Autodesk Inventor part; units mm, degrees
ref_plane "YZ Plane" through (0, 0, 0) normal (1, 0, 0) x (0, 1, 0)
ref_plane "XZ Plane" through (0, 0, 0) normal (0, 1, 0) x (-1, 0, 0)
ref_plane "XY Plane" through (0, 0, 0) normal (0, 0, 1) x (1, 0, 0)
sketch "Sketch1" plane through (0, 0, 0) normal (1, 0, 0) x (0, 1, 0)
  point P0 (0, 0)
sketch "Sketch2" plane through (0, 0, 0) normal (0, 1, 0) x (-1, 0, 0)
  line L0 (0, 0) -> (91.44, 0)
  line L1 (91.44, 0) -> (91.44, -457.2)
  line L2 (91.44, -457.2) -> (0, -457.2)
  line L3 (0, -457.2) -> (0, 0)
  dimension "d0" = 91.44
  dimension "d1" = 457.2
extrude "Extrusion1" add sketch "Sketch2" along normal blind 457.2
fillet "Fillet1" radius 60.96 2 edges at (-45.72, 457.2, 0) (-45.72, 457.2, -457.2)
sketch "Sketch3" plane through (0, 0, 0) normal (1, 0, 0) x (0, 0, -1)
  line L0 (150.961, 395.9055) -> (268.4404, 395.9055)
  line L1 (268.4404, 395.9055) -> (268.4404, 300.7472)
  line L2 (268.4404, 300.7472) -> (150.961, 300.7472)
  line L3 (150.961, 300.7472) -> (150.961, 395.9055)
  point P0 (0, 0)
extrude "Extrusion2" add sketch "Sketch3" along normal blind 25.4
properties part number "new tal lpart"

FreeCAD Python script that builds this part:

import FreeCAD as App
import Part
import Sketcher
from FreeCAD import Vector
Q = App.Units.Quantity


def edges_at(feature, points):
    """Names of the edges that pass closest to the given points."""
    edges = feature.Shape.Edges
    near = lambda p: min(range(len(edges)), key=lambda i: edges[i].distToShape(Part.Vertex(*p))[0])
    return sorted({f"Edge{near(p) + 1}" for p in points})

doc = App.newDocument("Part")
params = doc.addObject("Spreadsheet::Sheet", "Params")
for row, (alias, value) in enumerate([
    ("sketch1_height", "18 in"),
    ("sketch1_width", "3.6 in"),
    ("pad1_length", "18 in"),
    ("fillet_radius", "2.4 in"),
    ("pad2_length", "1 in"),
], start=1):
    params.set(f"A{row}", alias)
    params.set(f"B{row}", "=" + value)
    params.setAlias(f"B{row}", alias)

body = doc.addObject("PartDesign::Body", "Body")

# Sketch on XZ plane
sketch1 = body.newObject("Sketcher::SketchObject", "Sketch")
sketch1.AttachmentSupport = (doc.getObject("XZ_Plane"), [""])
sketch1.MapMode = "FlatFace"
sketch1.addGeometry([
    Part.LineSegment(Vector(-91.44, 0, 0), Vector(0, 0, 0)),
    Part.LineSegment(Vector(0, 0, 0), Vector(0, -457.2, 0)),
    Part.LineSegment(Vector(0, -457.2, 0), Vector(-91.44, -457.2, 0)),
    Part.LineSegment(Vector(-91.44, -457.2, 0), Vector(-91.44, 0, 0)),
], False)
sketch1.addConstraint([
    Sketcher.Constraint("Coincident", 0, 2, 1, 1),
    Sketcher.Constraint("Coincident", 1, 2, 2, 1),
    Sketcher.Constraint("Coincident", 2, 2, 3, 1),
    Sketcher.Constraint("Coincident", 3, 2, 0, 1),
    Sketcher.Constraint("Horizontal", 0),
    Sketcher.Constraint("Vertical", 1),
    Sketcher.Constraint("Horizontal", 2),
    Sketcher.Constraint("Vertical", 3),
    Sketcher.Constraint("Coincident", 0, 2, -1, 1),
    Sketcher.Constraint("DistanceY", 1, 2, 1, 1, Q("18 in")),
    Sketcher.Constraint("DistanceX", 0, 1, 0, 2, Q("3.6 in")),
])
sketch1.setExpression("Constraints[9]", "Params.sketch1_height")
sketch1.setExpression("Constraints[10]", "Params.sketch1_width")
pad1 = body.newObject("PartDesign::Pad", "Pad")
pad1.Profile = sketch1
pad1.setExpression("Length", "Params.pad1_length")
pad1.Reversed = True
doc.recompute()

fillet = body.newObject("PartDesign::Fillet", "Fillet")
fillet.Base = (pad1, edges_at(pad1, [(-45.72, 457.2, 0), (-45.72, 457.2, -457.2)]))
fillet.setExpression("Radius", "Params.fillet_radius")

# Sketch on YZ plane
sketch2 = body.newObject("Sketcher::SketchObject", "Sketch001")
sketch2.AttachmentSupport = (doc.getObject("YZ_Plane"), [""])
sketch2.MapMode = "FlatFace"
sketch2.addGeometry([
    Part.LineSegment(Vector(395.9055, -268.4404, 0), Vector(395.9055, -150.961, 0)),
    Part.LineSegment(Vector(395.9055, -150.961, 0), Vector(300.7472, -150.961, 0)),
    Part.LineSegment(Vector(300.7472, -150.961, 0), Vector(300.7472, -268.4404, 0)),
    Part.LineSegment(Vector(300.7472, -268.4404, 0), Vector(395.9055, -268.4404, 0)),
], False)
sketch2.addConstraint([
    Sketcher.Constraint("Coincident", 0, 2, 1, 1),
    Sketcher.Constraint("Coincident", 1, 2, 2, 1),
    Sketcher.Constraint("Coincident", 2, 2, 3, 1),
    Sketcher.Constraint("Coincident", 3, 2, 0, 1),
    Sketcher.Constraint("Vertical", 0),
    Sketcher.Constraint("Horizontal", 1),
    Sketcher.Constraint("Vertical", 2),
    Sketcher.Constraint("Horizontal", 3),
    Sketcher.Constraint("DistanceX", 1, 2, 1, 1, Q("3.7464 in")),
    Sketcher.Constraint("DistanceY", 0, 1, 0, 2, 117.4794),
    Sketcher.Constraint("DistanceX", -1, 1, 0, 2, 395.9055),
    Sketcher.Constraint("DistanceY", 0, 2, -1, 1, 150.961),
])
pad2 = body.newObject("PartDesign::Pad", "Pad001")
pad2.Profile = sketch2
pad2.setExpression("Length", "Params.pad2_length")

doc.recompute()
